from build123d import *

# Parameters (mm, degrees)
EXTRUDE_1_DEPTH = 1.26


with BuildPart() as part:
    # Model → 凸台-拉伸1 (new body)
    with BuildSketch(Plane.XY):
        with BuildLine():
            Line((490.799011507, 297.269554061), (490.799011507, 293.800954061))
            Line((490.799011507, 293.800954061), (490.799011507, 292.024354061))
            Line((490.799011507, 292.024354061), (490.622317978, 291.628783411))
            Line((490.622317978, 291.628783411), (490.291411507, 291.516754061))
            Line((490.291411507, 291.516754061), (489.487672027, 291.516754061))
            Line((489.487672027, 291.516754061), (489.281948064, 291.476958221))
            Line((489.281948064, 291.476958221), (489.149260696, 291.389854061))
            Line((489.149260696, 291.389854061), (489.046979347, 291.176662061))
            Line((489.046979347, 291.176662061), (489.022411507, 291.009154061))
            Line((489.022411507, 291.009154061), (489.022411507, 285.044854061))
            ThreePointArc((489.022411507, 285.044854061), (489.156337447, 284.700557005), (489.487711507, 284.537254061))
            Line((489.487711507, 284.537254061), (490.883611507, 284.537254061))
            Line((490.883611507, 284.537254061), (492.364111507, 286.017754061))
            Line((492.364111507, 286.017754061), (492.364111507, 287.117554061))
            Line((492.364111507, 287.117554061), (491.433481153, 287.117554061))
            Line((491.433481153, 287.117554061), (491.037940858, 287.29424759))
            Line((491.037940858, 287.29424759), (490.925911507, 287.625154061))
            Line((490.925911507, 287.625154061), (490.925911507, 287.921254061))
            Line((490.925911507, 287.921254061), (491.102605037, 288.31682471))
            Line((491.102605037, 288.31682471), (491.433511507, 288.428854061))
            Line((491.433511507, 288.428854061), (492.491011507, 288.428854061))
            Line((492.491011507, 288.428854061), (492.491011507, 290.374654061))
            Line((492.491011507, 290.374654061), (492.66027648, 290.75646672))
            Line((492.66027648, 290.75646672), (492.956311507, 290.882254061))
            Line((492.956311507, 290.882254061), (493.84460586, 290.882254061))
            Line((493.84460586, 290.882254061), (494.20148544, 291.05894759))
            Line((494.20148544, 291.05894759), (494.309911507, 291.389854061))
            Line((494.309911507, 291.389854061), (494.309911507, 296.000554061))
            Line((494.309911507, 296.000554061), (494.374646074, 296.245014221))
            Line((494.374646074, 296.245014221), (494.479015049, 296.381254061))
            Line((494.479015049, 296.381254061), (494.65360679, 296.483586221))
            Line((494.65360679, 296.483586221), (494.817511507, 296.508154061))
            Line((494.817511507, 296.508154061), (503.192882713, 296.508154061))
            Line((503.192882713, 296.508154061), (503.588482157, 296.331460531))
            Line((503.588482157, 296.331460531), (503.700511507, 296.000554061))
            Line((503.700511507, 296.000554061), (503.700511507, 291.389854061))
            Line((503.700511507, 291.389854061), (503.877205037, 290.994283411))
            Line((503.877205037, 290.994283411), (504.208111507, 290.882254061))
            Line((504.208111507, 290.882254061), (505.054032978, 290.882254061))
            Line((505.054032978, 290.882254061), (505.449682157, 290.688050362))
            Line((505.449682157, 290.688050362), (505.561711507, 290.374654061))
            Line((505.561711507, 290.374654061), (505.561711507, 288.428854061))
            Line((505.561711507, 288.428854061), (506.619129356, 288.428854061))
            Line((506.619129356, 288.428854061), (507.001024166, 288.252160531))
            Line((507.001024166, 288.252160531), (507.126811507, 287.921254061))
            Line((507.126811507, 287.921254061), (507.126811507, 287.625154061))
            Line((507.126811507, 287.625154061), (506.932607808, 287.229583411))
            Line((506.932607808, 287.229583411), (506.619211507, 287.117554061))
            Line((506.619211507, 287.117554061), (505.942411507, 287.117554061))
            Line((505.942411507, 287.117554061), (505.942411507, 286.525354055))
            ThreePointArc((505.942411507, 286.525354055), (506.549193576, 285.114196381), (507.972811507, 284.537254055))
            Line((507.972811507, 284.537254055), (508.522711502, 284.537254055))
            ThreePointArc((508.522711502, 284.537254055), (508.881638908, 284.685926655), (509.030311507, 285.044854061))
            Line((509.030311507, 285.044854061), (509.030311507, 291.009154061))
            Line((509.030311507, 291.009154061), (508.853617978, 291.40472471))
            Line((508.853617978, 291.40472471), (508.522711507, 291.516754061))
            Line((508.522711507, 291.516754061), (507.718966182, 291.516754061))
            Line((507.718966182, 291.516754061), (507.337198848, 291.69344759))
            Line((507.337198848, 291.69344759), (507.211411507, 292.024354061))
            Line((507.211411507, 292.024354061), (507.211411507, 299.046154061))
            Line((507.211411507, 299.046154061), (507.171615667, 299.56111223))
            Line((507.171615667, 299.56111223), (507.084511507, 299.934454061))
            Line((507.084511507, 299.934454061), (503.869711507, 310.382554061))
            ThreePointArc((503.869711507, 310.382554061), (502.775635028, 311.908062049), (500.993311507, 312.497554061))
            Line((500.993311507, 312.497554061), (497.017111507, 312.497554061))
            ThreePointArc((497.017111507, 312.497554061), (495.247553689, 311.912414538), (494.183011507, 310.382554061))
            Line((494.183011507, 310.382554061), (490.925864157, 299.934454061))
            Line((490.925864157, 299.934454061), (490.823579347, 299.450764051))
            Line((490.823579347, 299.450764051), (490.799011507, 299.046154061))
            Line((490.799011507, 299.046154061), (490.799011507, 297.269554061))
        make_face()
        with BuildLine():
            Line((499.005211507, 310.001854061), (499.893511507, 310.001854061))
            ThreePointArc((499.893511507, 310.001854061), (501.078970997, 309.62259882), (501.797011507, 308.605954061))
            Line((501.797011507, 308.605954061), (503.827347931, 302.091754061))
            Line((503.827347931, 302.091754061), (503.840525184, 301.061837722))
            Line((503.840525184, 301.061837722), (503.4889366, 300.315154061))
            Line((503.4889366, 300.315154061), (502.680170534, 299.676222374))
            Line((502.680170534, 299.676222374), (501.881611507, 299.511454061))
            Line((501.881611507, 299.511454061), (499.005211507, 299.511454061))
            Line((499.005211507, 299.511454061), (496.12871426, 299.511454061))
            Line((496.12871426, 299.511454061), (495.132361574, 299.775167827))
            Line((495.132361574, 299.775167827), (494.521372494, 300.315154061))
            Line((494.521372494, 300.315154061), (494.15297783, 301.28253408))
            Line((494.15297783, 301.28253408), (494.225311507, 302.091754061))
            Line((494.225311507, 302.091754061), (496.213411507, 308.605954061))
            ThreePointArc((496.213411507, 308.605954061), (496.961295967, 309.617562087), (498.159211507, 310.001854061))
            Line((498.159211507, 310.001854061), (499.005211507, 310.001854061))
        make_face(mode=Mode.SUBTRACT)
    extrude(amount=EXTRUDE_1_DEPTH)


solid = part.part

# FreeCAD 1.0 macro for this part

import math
import FreeCAD as App
import Part
import Sketcher

V = App.Vector
Q = App.Units.Quantity

doc = App.newDocument("Part")
body = doc.addObject("PartDesign::Body", "Body")

# Sketch on XY plane
sketch1 = doc.addObject("Sketcher::SketchObject", "Sketch")
body.addObject(sketch1)
sketch1.AttachmentSupport = (doc.XY_Plane, [""])
sketch1.MapMode = "FlatFace"
sketch1.addGeometry(Part.LineSegment(V(490.8, 292.02, 0), V(490.62, 291.63, 0)), False)
sketch1.addGeometry(Part.LineSegment(V(490.62, 291.63, 0), V(490.29, 291.52, 0)), False)
sketch1.addGeometry(Part.LineSegment(V(490.29, 291.52, 0), V(489.49, 291.52, 0)), False)
sketch1.addGeometry(Part.LineSegment(V(489.49, 291.52, 0), V(489.28, 291.48, 0)), False)
sketch1.addGeometry(Part.LineSegment(V(489.28, 291.48, 0), V(489.15, 291.39, 0)), False)
sketch1.addGeometry(Part.LineSegment(V(489.15, 291.39, 0), V(489.05, 291.18, 0)), False)
sketch1.addGeometry(Part.LineSegment(V(489.05, 291.18, 0), V(489.02, 291.01, 0)), False)
sketch1.addGeometry(Part.LineSegment(V(489.02, 291.01, 0), V(489.02, 285.04, 0)), False)
sketch1.addGeometry(Part.ArcOfCircle(Part.Circle(V(489.53, 285.04, 0), V(0, 0, 1), 0.51), math.radians(-180), math.radians(-95)), False)
sketch1.addGeometry(Part.LineSegment(V(489.49, 284.54, 0), V(490.88, 284.54, 0)), False)
sketch1.addGeometry(Part.LineSegment(V(490.88, 284.54, 0), V(492.36, 286.02, 0)), False)
sketch1.addGeometry(Part.LineSegment(V(492.36, 286.02, 0), V(492.36, 287.12, 0)), False)
sketch1.addGeometry(Part.LineSegment(V(492.36, 287.12, 0), V(491.43, 287.12, 0)), False)
sketch1.addGeometry(Part.LineSegment(V(491.43, 287.12, 0), V(491.04, 287.29, 0)), False)
sketch1.addGeometry(Part.LineSegment(V(491.04, 287.29, 0), V(490.93, 287.63, 0)), False)
sketch1.addGeometry(Part.LineSegment(V(490.93, 287.63, 0), V(490.93, 287.92, 0)), False)
sketch1.addGeometry(Part.LineSegment(V(490.93, 287.92, 0), V(491.1, 288.32, 0)), False)
sketch1.addGeometry(Part.LineSegment(V(491.1, 288.32, 0), V(491.43, 288.43, 0)), False)
sketch1.addGeometry(Part.LineSegment(V(491.43, 288.43, 0), V(492.49, 288.43, 0)), False)
sketch1.addGeometry(Part.LineSegment(V(492.49, 288.43, 0), V(492.49, 290.37, 0)), False)
sketch1.addGeometry(Part.LineSegment(V(492.49, 290.37, 0), V(492.66, 290.76, 0)), False)
sketch1.addGeometry(Part.LineSegment(V(492.66, 290.76, 0), V(492.96, 290.88, 0)), False)
sketch1.addGeometry(Part.LineSegment(V(492.96, 290.88, 0), V(493.84, 290.88, 0)), False)
sketch1.addGeometry(Part.LineSegment(V(493.84, 290.88, 0), V(494.2, 291.06, 0)), False)
sketch1.addGeometry(Part.LineSegment(V(494.2, 291.06, 0), V(494.31, 291.39, 0)), False)
sketch1.addGeometry(Part.LineSegment(V(494.31, 291.39, 0), V(494.31, 296, 0)), False)
sketch1.addGeometry(Part.LineSegment(V(494.31, 296, 0), V(494.37, 296.25, 0)), False)
sketch1.addGeometry(Part.LineSegment(V(494.37, 296.25, 0), V(494.48, 296.38, 0)), False)
sketch1.addGeometry(Part.LineSegment(V(494.48, 296.38, 0), V(494.65, 296.48, 0)), False)
sketch1.addGeometry(Part.LineSegment(V(494.65, 296.48, 0), V(494.82, 296.51, 0)), False)
sketch1.addGeometry(Part.LineSegment(V(494.82, 296.51, 0), V(503.19, 296.51, 0)), False)
sketch1.addGeometry(Part.LineSegment(V(503.19, 296.51, 0), V(503.59, 296.33, 0)), False)
sketch1.addGeometry(Part.LineSegment(V(503.59, 296.33, 0), V(503.7, 296, 0)), False)
sketch1.addGeometry(Part.LineSegment(V(503.7, 296, 0), V(503.7, 291.39, 0)), False)
sketch1.addGeometry(Part.LineSegment(V(503.7, 291.39, 0), V(503.88, 290.99, 0)), False)
sketch1.addGeometry(Part.LineSegment(V(503.88, 290.99, 0), V(504.21, 290.88, 0)), False)
sketch1.addGeometry(Part.LineSegment(V(504.21, 290.88, 0), V(505.05, 290.88, 0)), False)
sketch1.addGeometry(Part.LineSegment(V(505.05, 290.88, 0), V(505.45, 290.69, 0)), False)
sketch1.addGeometry(Part.LineSegment(V(505.45, 290.69, 0), V(505.56, 290.37, 0)), False)
sketch1.addGeometry(Part.LineSegment(V(505.56, 290.37, 0), V(505.56, 288.43, 0)), False)
sketch1.addGeometry(Part.LineSegment(V(505.56, 288.43, 0), V(506.62, 288.43, 0)), False)
sketch1.addGeometry(Part.LineSegment(V(506.62, 288.43, 0), V(507, 288.25, 0)), False)
sketch1.addGeometry(Part.LineSegment(V(507, 288.25, 0), V(507.13, 287.92, 0)), False)
sketch1.addGeometry(Part.LineSegment(V(507.13, 287.92, 0), V(507.13, 287.63, 0)), False)
sketch1.addGeometry(Part.LineSegment(V(507.13, 287.63, 0), V(506.93, 287.23, 0)), False)
sketch1.addGeometry(Part.LineSegment(V(506.93, 287.23, 0), V(506.62, 287.12, 0)), False)
sketch1.addGeometry(Part.LineSegment(V(506.62, 287.12, 0), V(505.94, 287.12, 0)), False)
sketch1.addGeometry(Part.LineSegment(V(505.94, 287.12, 0), V(505.94, 286.53, 0)), False)
sketch1.addGeometry(Part.ArcOfCircle(Part.Circle(V(507.96, 286.56, 0), V(0, 0, 1), 2.02), math.radians(-179), math.radians(-90)), False)
sketch1.addGeometry(Part.LineSegment(V(507.97, 284.54, 0), V(508.52, 284.54, 0)), False)
sketch1.addGeometry(Part.ArcOfCircle(Part.Circle(V(508.52, 285.04, 0), V(0, 0, 1), 0.51), math.radians(-90), math.radians(0)), False)
sketch1.addGeometry(Part.LineSegment(V(509.03, 285.04, 0), V(509.03, 291.01, 0)), False)
sketch1.addGeometry(Part.LineSegment(V(509.03, 291.01, 0), V(508.85, 291.4, 0)), False)
sketch1.addGeometry(Part.LineSegment(V(508.85, 291.4, 0), V(508.52, 291.52, 0)), False)
sketch1.addGeometry(Part.LineSegment(V(508.52, 291.52, 0), V(507.72, 291.52, 0)), False)
sketch1.addGeometry(Part.LineSegment(V(507.72, 291.52, 0), V(507.34, 291.69, 0)), False)
sketch1.addGeometry(Part.LineSegment(V(507.34, 291.69, 0), V(507.21, 292.02, 0)), False)
sketch1.addGeometry(Part.LineSegment(V(507.21, 292.02, 0), V(507.21, 299.05, 0)), False)
sketch1.addGeometry(Part.LineSegment(V(507.21, 299.05, 0), V(507.17, 299.56, 0)), False)
sketch1.addGeometry(Part.LineSegment(V(507.17, 299.56, 0), V(507.08, 299.93, 0)), False)
sketch1.addGeometry(Part.LineSegment(V(507.08, 299.93, 0), V(503.87, 310.38, 0)), False)
sketch1.addGeometry(Part.ArcOfCircle(Part.Circle(V(500.98, 309.46, 0), V(0, 0, 1), 3.03), math.radians(18), math.radians(90)), False)
sketch1.addGeometry(Part.LineSegment(V(500.99, 312.5, 0), V(497.02, 312.5, 0)), False)
sketch1.addGeometry(Part.ArcOfCircle(Part.Circle(V(497.01, 309.55, 0), V(0, 0, 1), 2.95), math.radians(90), math.radians(164)), False)
sketch1.addGeometry(Part.LineSegment(V(494.18, 310.38, 0), V(490.93, 299.93, 0)), False)
sketch1.addGeometry(Part.LineSegment(V(490.93, 299.93, 0), V(490.82, 299.45, 0)), False)
sketch1.addGeometry(Part.LineSegment(V(490.82, 299.45, 0), V(490.8, 299.05, 0)), False)
sketch1.addGeometry(Part.LineSegment(V(490.8, 299.05, 0), V(490.8, 292.02, 0)), False)
sketch1.addGeometry(Part.LineSegment(V(498.16, 310, 0), V(499.89, 310, 0)), False)
sketch1.addGeometry(Part.ArcOfCircle(Part.Circle(V(499.92, 308.04, 0), V(0, 0, 1), 1.96), math.radians(17), math.radians(91)), False)
sketch1.addGeometry(Part.LineSegment(V(501.8, 308.61, 0), V(503.83, 302.09, 0)), False)
sketch1.addGeometry(Part.LineSegment(V(503.83, 302.09, 0), V(503.84, 301.06, 0)), False)
sketch1.addGeometry(Part.LineSegment(V(503.84, 301.06, 0), V(503.49, 300.32, 0)), False)
sketch1.addGeometry(Part.LineSegment(V(503.49, 300.32, 0), V(502.68, 299.68, 0)), False)
sketch1.addGeometry(Part.LineSegment(V(502.68, 299.68, 0), V(501.88, 299.51, 0)), False)
sketch1.addGeometry(Part.LineSegment(V(501.88, 299.51, 0), V(496.13, 299.51, 0)), False)
sketch1.addGeometry(Part.LineSegment(V(496.13, 299.51, 0), V(495.13, 299.78, 0)), False)
sketch1.addGeometry(Part.LineSegment(V(495.13, 299.78, 0), V(494.52, 300.32, 0)), False)
sketch1.addGeometry(Part.LineSegment(V(494.52, 300.32, 0), V(494.15, 301.28, 0)), False)
sketch1.addGeometry(Part.LineSegment(V(494.15, 301.28, 0), V(494.23, 302.09, 0)), False)
sketch1.addGeometry(Part.LineSegment(V(494.23, 302.09, 0), V(496.21, 308.61, 0)), False)
sketch1.addGeometry(Part.ArcOfCircle(Part.Circle(V(498.16, 307.95, 0), V(0, 0, 1), 2.05), math.radians(90), math.radians(161)), False)
sketch1.addConstraint(Sketcher.Constraint("Coincident", 0, 2, 1, 1))
sketch1.addConstraint(Sketcher.Constraint("Coincident", 1, 2, 2, 1))
sketch1.addConstraint(Sketcher.Constraint("Coincident", 2, 2, 3, 1))
sketch1.addConstraint(Sketcher.Constraint("Coincident", 3, 2, 4, 1))
sketch1.addConstraint(Sketcher.Constraint("Coincident", 4, 2, 5, 1))
sketch1.addConstraint(Sketcher.Constraint("Coincident", 5, 2, 6, 1))
sketch1.addConstraint(Sketcher.Constraint("Coincident", 6, 2, 7, 1))
sketch1.addConstraint(Sketcher.Constraint("Tangent", 7, 2, 8, 1))
sketch1.addConstraint(Sketcher.Constraint("Coincident", 8, 2, 9, 1))
sketch1.addConstraint(Sketcher.Constraint("Coincident", 9, 2, 10, 1))
sketch1.addConstraint(Sketcher.Constraint("Coincident", 10, 2, 11, 1))
sketch1.addConstraint(Sketcher.Constraint("Coincident", 11, 2, 12, 1))
sketch1.addConstraint(Sketcher.Constraint("Coincident", 12, 2, 13, 1))
sketch1.addConstraint(Sketcher.Constraint("Coincident", 13, 2, 14, 1))
sketch1.addConstraint(Sketcher.Constraint("Coincident", 14, 2, 15, 1))
sketch1.addConstraint(Sketcher.Constraint("Coincident", 15, 2, 16, 1))
sketch1.addConstraint(Sketcher.Constraint("Coincident", 16, 2, 17, 1))
sketch1.addConstraint(Sketcher.Constraint("Coincident", 17, 2, 18, 1))
sketch1.addConstraint(Sketcher.Constraint("Coincident", 18, 2, 19, 1))
sketch1.addConstraint(Sketcher.Constraint("Coincident", 19, 2, 20, 1))
sketch1.addConstraint(Sketcher.Constraint("Coincident", 20, 2, 21, 1))
sketch1.addConstraint(Sketcher.Constraint("Coincident", 21, 2, 22, 1))
sketch1.addConstraint(Sketcher.Constraint("Coincident", 22, 2, 23, 1))
sketch1.addConstraint(Sketcher.Constraint("Coincident", 23, 2, 24, 1))
sketch1.addConstraint(Sketcher.Constraint("Coincident", 24, 2, 25, 1))
sketch1.addConstraint(Sketcher.Constraint("Coincident", 25, 2, 26, 1))
sketch1.addConstraint(Sketcher.Constraint("Coincident", 26, 2, 27, 1))
sketch1.addConstraint(Sketcher.Constraint("Coincident", 27, 2, 28, 1))
sketch1.addConstraint(Sketcher.Constraint("Coincident", 28, 2, 29, 1))
sketch1.addConstraint(Sketcher.Constraint("Coincident", 29, 2, 30, 1))
sketch1.addConstraint(Sketcher.Constraint("Coincident", 30, 2, 31, 1))
sketch1.addConstraint(Sketcher.Constraint("Coincident", 31, 2, 32, 1))
sketch1.addConstraint(Sketcher.Constraint("Coincident", 32, 2, 33, 1))
sketch1.addConstraint(Sketcher.Constraint("Coincident", 33, 2, 34, 1))
sketch1.addConstraint(Sketcher.Constraint("Coincident", 34, 2, 35, 1))
sketch1.addConstraint(Sketcher.Constraint("Coincident", 35, 2, 36, 1))
sketch1.addConstraint(Sketcher.Constraint("Coincident", 36, 2, 37, 1))
sketch1.addConstraint(Sketcher.Constraint("Coincident", 37, 2, 38, 1))
sketch1.addConstraint(Sketcher.Constraint("Coincident", 38, 2, 39, 1))
sketch1.addConstraint(Sketcher.Constraint("Coincident", 39, 2, 40, 1))
sketch1.addConstraint(Sketcher.Constraint("Coincident", 40, 2, 41, 1))
sketch1.addConstraint(Sketcher.Constraint("Coincident", 41, 2, 42, 1))
sketch1.addConstraint(Sketcher.Constraint("Coincident", 42, 2, 43, 1))
sketch1.addConstraint(Sketcher.Constraint("Coincident", 43, 2, 44, 1))
sketch1.addConstraint(Sketcher.Constraint("Coincident", 44, 2, 45, 1))
sketch1.addConstraint(Sketcher.Constraint("Coincident", 45, 2, 46, 1))
sketch1.addConstraint(Sketcher.Constraint("Coincident", 46, 2, 47, 1))
sketch1.addConstraint(Sketcher.Constraint("Coincident", 47, 2, 48, 1))
sketch1.addConstraint(Sketcher.Constraint("Coincident", 48, 2, 49, 1))
sketch1.addConstraint(Sketcher.Constraint("Tangent", 49, 2, 50, 1))
sketch1.addConstraint(Sketcher.Constraint("Tangent", 50, 2, 51, 1))
sketch1.addConstraint(Sketcher.Constraint("Coincident", 51, 2, 52, 1))
sketch1.addConstraint(Sketcher.Constraint("Coincident", 52, 2, 53, 1))
sketch1.addConstraint(Sketcher.Constraint("Coincident", 53, 2, 54, 1))
sketch1.addConstraint(Sketcher.Constraint("Coincident", 54, 2, 55, 1))
sketch1.addConstraint(Sketcher.Constraint("Coincident", 55, 2, 56, 1))
sketch1.addConstraint(Sketcher.Constraint("Coincident", 56, 2, 57, 1))
sketch1.addConstraint(Sketcher.Constraint("Coincident", 57, 2, 58, 1))
sketch1.addConstraint(Sketcher.Constraint("Coincident", 58, 2, 59, 1))
sketch1.addConstraint(Sketcher.Constraint("Coincident", 59, 2, 60, 1))
sketch1.addConstraint(Sketcher.Constraint("Coincident", 60, 2, 61, 1))
sketch1.addConstraint(Sketcher.Constraint("Coincident", 61, 2, 62, 1))
sketch1.addConstraint(Sketcher.Constraint("Coincident", 62, 2, 63, 1))
sketch1.addConstraint(Sketcher.Constraint("Coincident", 63, 2, 64, 1))
sketch1.addConstraint(Sketcher.Constraint("Coincident", 64, 2, 65, 1))
sketch1.addConstraint(Sketcher.Constraint("Coincident", 65, 2, 66, 1))
sketch1.addConstraint(Sketcher.Constraint("Coincident", 66, 2, 67, 1))
sketch1.addConstraint(Sketcher.Constraint("Coincident", 67, 2, 0, 1))
sketch1.addConstraint(Sketcher.Constraint("Coincident", 68, 2, 69, 2))
sketch1.addConstraint(Sketcher.Constraint("Coincident", 69, 1, 70, 1))
sketch1.addConstraint(Sketcher.Constraint("Coincident", 70, 2, 71, 1))
sketch1.addConstraint(Sketcher.Constraint("Coincident", 71, 2, 72, 1))
sketch1.addConstraint(Sketcher.Constraint("Coincident", 72, 2, 73, 1))
sketch1.addConstraint(Sketcher.Constraint("Coincident", 73, 2, 74, 1))
sketch1.addConstraint(Sketcher.Constraint("Coincident", 74, 2, 75, 1))
sketch1.addConstraint(Sketcher.Constraint("Coincident", 75, 2, 76, 1))
sketch1.addConstraint(Sketcher.Constraint("Coincident", 76, 2, 77, 1))
sketch1.addConstraint(Sketcher.Constraint("Coincident", 77, 2, 78, 1))
sketch1.addConstraint(Sketcher.Constraint("Coincident", 78, 2, 79, 1))
sketch1.addConstraint(Sketcher.Constraint("Coincident", 79, 2, 80, 1))
sketch1.addConstraint(Sketcher.Constraint("Coincident", 80, 2, 81, 2))
sketch1.addConstraint(Sketcher.Constraint("Coincident", 81, 1, 68, 1))
sketch1.addConstraint(Sketcher.Constraint("Horizontal", 2))
sketch1.addConstraint(Sketcher.Constraint("Vertical", 7))
sketch1.addConstraint(Sketcher.Constraint("Horizontal", 9))
sketch1.addConstraint(Sketcher.Constraint("Vertical", 11))
sketch1.addConstraint(Sketcher.Constraint("Horizontal", 12))
sketch1.addConstraint(Sketcher.Constraint("Vertical", 15))
sketch1.addConstraint(Sketcher.Constraint("Horizontal", 18))
sketch1.addConstraint(Sketcher.Constraint("Vertical", 19))
sketch1.addConstraint(Sketcher.Constraint("Horizontal", 22))
sketch1.addConstraint(Sketcher.Constraint("Vertical", 25))
sketch1.addConstraint(Sketcher.Constraint("Horizontal", 30))
sketch1.addConstraint(Sketcher.Constraint("Vertical", 33))
sketch1.addConstraint(Sketcher.Constraint("Horizontal", 36))
sketch1.addConstraint(Sketcher.Constraint("Vertical", 39))
sketch1.addConstraint(Sketcher.Constraint("Horizontal", 40))
sketch1.addConstraint(Sketcher.Constraint("Vertical", 43))
sketch1.addConstraint(Sketcher.Constraint("Horizontal", 46))
sketch1.addConstraint(Sketcher.Constraint("Vertical", 47))
sketch1.addConstraint(Sketcher.Constraint("Horizontal", 49))
sketch1.addConstraint(Sketcher.Constraint("Vertical", 51))
sketch1.addConstraint(Sketcher.Constraint("Horizontal", 54))
sketch1.addConstraint(Sketcher.Constraint("Vertical", 57))
sketch1.addConstraint(Sketcher.Constraint("Horizontal", 62))
sketch1.addConstraint(Sketcher.Constraint("Vertical", 67))
sketch1.addConstraint(Sketcher.Constraint("Horizontal", 68))
sketch1.addConstraint(Sketcher.Constraint("Horizontal", 75))
sketch1.addConstraint(Sketcher.Constraint("Perpendicular", 1, 14))
sketch1.addConstraint(Sketcher.Constraint("Parallel", 0, 16))
sketch1.addConstraint(Sketcher.Constraint("Perpendicular", 14, 17))
sketch1.addConstraint(Sketcher.Constraint("Perpendicular", 17, 32))
sketch1.addConstraint(Sketcher.Constraint("Perpendicular", 38, 45))
sketch1.addConstraint(Sketcher.Constraint("Parallel", 34, 52))
sketch1.addConstraint(Sketcher.Constraint("Parallel", 35, 53))
sketch1.addConstraint(Sketcher.Constraint("Parallel", 42, 56))
sketch1.addConstraint(Sketcher.Constraint("Horizontal", 8, 3, 50, 3))
sketch1.addConstraint(Sketcher.Constraint("Horizontal", 4, 2, 24, 2))
sketch1.addConstraint(Sketcher.Constraint("Horizontal", 25, 2, 32, 2))
sketch1.addConstraint(Sketcher.Constraint("Horizontal", 24, 2, 33, 2))
sketch1.addConstraint(Sketcher.Constraint("Horizontal", 22, 2, 35, 2))
sketch1.addConstraint(Sketcher.Constraint("Horizontal", 19, 2, 38, 2))
sketch1.addConstraint(Sketcher.Constraint("Horizontal", 18, 2, 39, 2))
sketch1.addConstraint(Sketcher.Constraint("Horizontal", 15, 2, 42, 2))
sketch1.addConstraint(Sketcher.Constraint("Horizontal", 14, 2, 43, 2))
sketch1.addConstraint(Sketcher.Constraint("Horizontal", 12, 2, 45, 2))
sketch1.addConstraint(Sketcher.Constraint("Horizontal", 9, 2, 48, 2))
sketch1.addConstraint(Sketcher.Constraint("Horizontal", 6, 2, 51, 2))
sketch1.addConstraint(Sketcher.Constraint("Horizontal", 2, 2, 53, 2))
sketch1.addConstraint(Sketcher.Constraint("Horizontal", 60, 2, 63, 2))
sketch1.addConstraint(Sketcher.Constraint("Horizontal", 59, 2, 64, 2))
sketch1.addConstraint(Sketcher.Constraint("Horizontal", 57, 2, 66, 2))
sketch1.addConstraint(Sketcher.Constraint("Horizontal", 56, 2, 67, 2))
sketch1.addConstraint(Sketcher.Constraint("Horizontal", 72, 2, 77, 2))
sketch1.addConstraint(Sketcher.Constraint("Horizontal", 70, 2, 79, 2))
sketch1.addConstraint(Sketcher.Constraint("Horizontal", 69, 1, 80, 2))
sketch1.addConstraint(Sketcher.Constraint("Vertical", 49, 2, 53, 2))
sketch1.addConstraint(Sketcher.Constraint("Equal", 1, 14))
sketch1.addConstraint(Sketcher.Constraint("Equal", 0, 16))
sketch1.addConstraint(Sketcher.Constraint("Equal", 14, 17))
sketch1.addConstraint(Sketcher.Constraint("Equal", 17, 32))
sketch1.addConstraint(Sketcher.Constraint("Equal", 16, 34))
sketch1.addConstraint(Sketcher.Constraint("Equal", 32, 35))
sketch1.addConstraint(Sketcher.Constraint("Equal", 38, 45))
sketch1.addConstraint(Sketcher.Constraint("Equal", 34, 52))
sketch1.addConstraint(Sketcher.Constraint("Equal", 35, 53))
sketch1.addConstraint(Sketcher.Constraint("Equal", 42, 56))
sketch1.addConstraint(Sketcher.Constraint("Angle", 10, Q("45 deg")))
sketch1.addConstraint(Sketcher.Constraint("Radius", 50, 0.5076))
sketch1.addConstraint(Sketcher.Constraint("Distance", 71, 1.030001))
sketch1.addConstraint(Sketcher.Constraint("Radius", 48, 2.020969))
sketch1.addConstraint(Sketcher.Constraint("DistanceX", 9, 1, 9, 2, 1.3959))
sketch1.addConstraint(Sketcher.Constraint("DistanceX", 18, 1, 18, 2, 1.0575))
sketch1.addConstraint(Sketcher.Constraint("DistanceX", 46, 2, 46, 1, 0.6768))
sketch1.addConstraint(Sketcher.Constraint("DistanceX", 49, 1, 49, 2, 0.5499))
sketch1.addConstraint(Sketcher.Constraint("DistanceX", 62, 2, 62, 1, 3.9762))
sketch1.addConstraint(Sketcher.Constraint("DistanceX", 68, 1, 68, 2, 1.7343))
sketch1.addConstraint(Sketcher.Constraint("DistanceY", 7, 2, 7, 1, 5.9643))
sketch1.addConstraint(Sketcher.Constraint("DistanceY", 11, 1, 11, 2, 1.0998))
sketch1.addConstraint(Sketcher.Constraint("DistanceY", 15, 1, 15, 2, 0.2961))
sketch1.addConstraint(Sketcher.Constraint("DistanceY", 19, 1, 19, 2, 1.9458))
sketch1.addConstraint(Sketcher.Constraint("DistanceY", 25, 1, 25, 2, 4.6107))
sketch1.addConstraint(Sketcher.Constraint("DistanceY", 47, 2, 47, 1, 0.5922))
sketch1.addConstraint(Sketcher.Constraint("DistanceY", 57, 1, 57, 2, 7.0218))
sketch1.addConstraint(Sketcher.Constraint("Radius", 8, 0.509523))
sketch1.addConstraint(Sketcher.Constraint("Radius", 61, 3.033343))
sketch1.addConstraint(Sketcher.Constraint("Radius", 63, 2.946856))
sketch1.addConstraint(Sketcher.Constraint("Radius", 69, 1.959934))
sketch1.addConstraint(Sketcher.Constraint("Radius", 81, 2.049987))
sketch1.addConstraint(Sketcher.Constraint("Distance", 6, 0.1693))
sketch1.addConstraint(Sketcher.Constraint("Distance", 60, 10.931502))
sketch1.addConstraint(Sketcher.Constraint("DistanceX", 2, 2, 2, 1, 0.803739))
sketch1.addConstraint(Sketcher.Constraint("DistanceX", 12, 2, 12, 1, 0.93063))
sketch1.addConstraint(Sketcher.Constraint("DistanceX", 30, 1, 30, 2, 8.375371))
sketch1.addConstraint(Sketcher.Constraint("DistanceX", 36, 1, 36, 2, 0.845921))
sketch1.addConstraint(Sketcher.Constraint("DistanceY", -1, 1, 48, 3, 286.5582))
sketch1.addConstraint(Sketcher.Constraint("DistanceY", -1, 1, 69, 3, 308.042098))
sketch1.addConstraint(Sketcher.Constraint("DistanceX", -1, 1, 55, 2, 507.337199))
sketch1.addConstraint(Sketcher.Constraint("Distance", 0, 0.43324))
sketch1.addConstraint(Sketcher.Constraint("Distance", 20, 0.41765))
sketch1.addConstraint(Sketcher.Constraint("Distance", 21, 0.321651))
sketch1.addConstraint(Sketcher.Constraint("Distance", 28, 0.202371))
sketch1.addConstraint(Sketcher.Constraint("Distance", 37, 0.440742))
sketch1.addConstraint(Sketcher.Constraint("Distance", 41, 0.42079))
sketch1.addConstraint(Sketcher.Constraint("Distance", 44, 0.440671))
sketch1.addConstraint(Sketcher.Constraint("Distance", 59, 0.383368))
sketch1.addConstraint(Sketcher.Constraint("Distance", 64, 10.94403))
sketch1.addConstraint(Sketcher.Constraint("Distance", 72, 0.825319))
sketch1.addConstraint(Sketcher.Constraint("Distance", 74, 0.81538))
sketch1.addConstraint(Sketcher.Constraint("Distance", 76, 1.030662))
sketch1.addConstraint(Sketcher.Constraint("Distance", 77, 0.81541))
sketch1.addConstraint(Sketcher.Constraint("Distance", 78, 1.035152))
sketch1.addConstraint(Sketcher.Constraint("DistanceX", 22, 1, 22, 2, 0.888294))
sketch1.addConstraint(Sketcher.Constraint("DistanceX", 40, 1, 40, 2, 1.057418))
sketch1.addConstraint(Sketcher.Constraint("DistanceX", 54, 2, 54, 1, 0.803745))
sketch1.addConstraint(Sketcher.Constraint("DistanceX", 75, 2, 75, 1, 5.752897))
sketch1.addConstraint(Sketcher.Constraint("DistanceX", -1, 1, 50, 3, 508.522712))
sketch1.addConstraint(Sketcher.Constraint("DistanceX", -1, 1, 61, 3, 500.978712))
sketch1.addConstraint(Sketcher.Constraint("DistanceX", -1, 1, 81, 3, 498.156249))
sketch1.addConstraint(Sketcher.Constraint("DistanceY", -1, 1, 81, 3, 307.951869))
sketch1.addConstraint(Sketcher.Constraint("DistanceX", -1, 1, 1, 2, 490.291412))
sketch1.addConstraint(Sketcher.Constraint("DistanceX", -1, 1, 3, 2, 489.281948))
sketch1.addConstraint(Sketcher.Constraint("DistanceY", -1, 1, 3, 2, 291.476958))
sketch1.addConstraint(Sketcher.Constraint("DistanceX", -1, 1, 4, 2, 489.149261))
sketch1.addConstraint(Sketcher.Constraint("DistanceX", -1, 1, 5, 2, 489.046979))
sketch1.addConstraint(Sketcher.Constraint("DistanceX", -1, 1, 6, 2, 489.022412))
sketch1.addConstraint(Sketcher.Constraint("DistanceX", -1, 1, 10, 2, 492.364112))
sketch1.addConstraint(Sketcher.Constraint("DistanceX", -1, 1, 13, 2, 491.037941))
sketch1.addConstraint(Sketcher.Constraint("DistanceX", -1, 1, 14, 2, 490.925912))
sketch1.addConstraint(Sketcher.Constraint("DistanceX", -1, 1, 17, 2, 491.433512))
sketch1.addConstraint(Sketcher.Constraint("DistanceX", -1, 1, 21, 2, 492.956312))
sketch1.addConstraint(Sketcher.Constraint("DistanceX", -1, 1, 24, 2, 494.309912))
sketch1.addConstraint(Sketcher.Constraint("DistanceX", -1, 1, 29, 2, 494.817512))
sketch1.addConstraint(Sketcher.Constraint("DistanceY", -1, 1, 31, 2, 296.331461))
sketch1.addConstraint(Sketcher.Constraint("DistanceX", -1, 1, 32, 2, 503.700512))
sketch1.addConstraint(Sketcher.Constraint("DistanceY", -1, 1, 37, 2, 290.68805))
sketch1.addConstraint(Sketcher.Constraint("DistanceX", -1, 1, 38, 2, 505.561712))
sketch1.addConstraint(Sketcher.Constraint("DistanceY", -1, 1, 41, 2, 288.252161))
sketch1.addConstraint(Sketcher.Constraint("DistanceX", -1, 1, 42, 2, 507.126812))
sketch1.addConstraint(Sketcher.Constraint("DistanceX", -1, 1, 45, 2, 506.619212))
sketch1.addConstraint(Sketcher.Constraint("DistanceX", -1, 1, 56, 2, 507.211412))
sketch1.addConstraint(Sketcher.Constraint("DistanceX", -1, 1, 59, 2, 507.084512))
sketch1.addConstraint(Sketcher.Constraint("DistanceX", -1, 1, 60, 2, 503.869712))
sketch1.addConstraint(Sketcher.Constraint("DistanceX", -1, 1, 61, 2, 500.993312))
sketch1.addConstraint(Sketcher.Constraint("DistanceX", -1, 1, 63, 2, 494.183012))
sketch1.addConstraint(Sketcher.Constraint("DistanceX", -1, 1, 65, 2, 490.823579))
sketch1.addConstraint(Sketcher.Constraint("DistanceX", -1, 1, 68, 2, 499.893512))
sketch1.addConstraint(Sketcher.Constraint("DistanceX", -1, 1, 69, 1, 501.797012))
sketch1.addConstraint(Sketcher.Constraint("DistanceX", -1, 1, 73, 2, 502.680171))
sketch1.addConstraint(Sketcher.Constraint("DistanceX", -1, 1, 74, 2, 501.881612))
sketch1.addConstraint(Sketcher.Constraint("DistanceX", -1, 1, 76, 2, 495.132362))
sketch1.addConstraint(Sketcher.Constraint("DistanceX", -1, 1, 79, 2, 494.225312))
sketch1.addConstraint(Sketcher.Constraint("Distance", 1, 0.349356))
sketch1.addConstraint(Sketcher.Constraint("Distance", 23, 0.398226))
sketch1.addConstraint(Sketcher.Constraint("Distance", 24, 0.348217))
sketch1.addConstraint(Sketcher.Constraint("Distance", 26, 0.252886))
sketch1.addConstraint(Sketcher.Constraint("Distance", 27, 0.171622))
sketch1.addConstraint(Sketcher.Constraint("Distance", 29, 0.165736))
sketch1.addConstraint(Sketcher.Constraint("Distance", 31, 0.433266))
sketch1.addConstraint(Sketcher.Constraint("Distance", 58, 0.516494))
sketch1.addConstraint(Sketcher.Constraint("Distance", 65, 0.494387))
sketch1.addConstraint(Sketcher.Constraint("Distance", 66, 0.405355))
sketch1.addConstraint(Sketcher.Constraint("Distance", 70, 6.823274))
sketch1.addConstraint(Sketcher.Constraint("Distance", 73, 1.030697))
sketch1.addConstraint(Sketcher.Constraint("Distance", 79, 0.812446))
sketch1.addConstraint(Sketcher.Constraint("Distance", 80, 6.810825))
sketch1.addConstraint(Sketcher.Constraint("DistanceX", -1, 1, 26, 2, 494.374646))
sketch1.addConstraint(Sketcher.Constraint("DistanceX", -1, 1, 27, 2, 494.479015))
sketch1.addConstraint(Sketcher.Constraint("DistanceX", -1, 1, 71, 2, 503.840525))
sketch1.addConstraint(Sketcher.Constraint("DistanceX", -1, 1, 72, 2, 503.488937))
pad1 = doc.addObject("PartDesign::Pad", "Pad")
body.addObject(pad1)
pad1.Profile = sketch1
pad1.Length = 1.26

doc.recompute()
